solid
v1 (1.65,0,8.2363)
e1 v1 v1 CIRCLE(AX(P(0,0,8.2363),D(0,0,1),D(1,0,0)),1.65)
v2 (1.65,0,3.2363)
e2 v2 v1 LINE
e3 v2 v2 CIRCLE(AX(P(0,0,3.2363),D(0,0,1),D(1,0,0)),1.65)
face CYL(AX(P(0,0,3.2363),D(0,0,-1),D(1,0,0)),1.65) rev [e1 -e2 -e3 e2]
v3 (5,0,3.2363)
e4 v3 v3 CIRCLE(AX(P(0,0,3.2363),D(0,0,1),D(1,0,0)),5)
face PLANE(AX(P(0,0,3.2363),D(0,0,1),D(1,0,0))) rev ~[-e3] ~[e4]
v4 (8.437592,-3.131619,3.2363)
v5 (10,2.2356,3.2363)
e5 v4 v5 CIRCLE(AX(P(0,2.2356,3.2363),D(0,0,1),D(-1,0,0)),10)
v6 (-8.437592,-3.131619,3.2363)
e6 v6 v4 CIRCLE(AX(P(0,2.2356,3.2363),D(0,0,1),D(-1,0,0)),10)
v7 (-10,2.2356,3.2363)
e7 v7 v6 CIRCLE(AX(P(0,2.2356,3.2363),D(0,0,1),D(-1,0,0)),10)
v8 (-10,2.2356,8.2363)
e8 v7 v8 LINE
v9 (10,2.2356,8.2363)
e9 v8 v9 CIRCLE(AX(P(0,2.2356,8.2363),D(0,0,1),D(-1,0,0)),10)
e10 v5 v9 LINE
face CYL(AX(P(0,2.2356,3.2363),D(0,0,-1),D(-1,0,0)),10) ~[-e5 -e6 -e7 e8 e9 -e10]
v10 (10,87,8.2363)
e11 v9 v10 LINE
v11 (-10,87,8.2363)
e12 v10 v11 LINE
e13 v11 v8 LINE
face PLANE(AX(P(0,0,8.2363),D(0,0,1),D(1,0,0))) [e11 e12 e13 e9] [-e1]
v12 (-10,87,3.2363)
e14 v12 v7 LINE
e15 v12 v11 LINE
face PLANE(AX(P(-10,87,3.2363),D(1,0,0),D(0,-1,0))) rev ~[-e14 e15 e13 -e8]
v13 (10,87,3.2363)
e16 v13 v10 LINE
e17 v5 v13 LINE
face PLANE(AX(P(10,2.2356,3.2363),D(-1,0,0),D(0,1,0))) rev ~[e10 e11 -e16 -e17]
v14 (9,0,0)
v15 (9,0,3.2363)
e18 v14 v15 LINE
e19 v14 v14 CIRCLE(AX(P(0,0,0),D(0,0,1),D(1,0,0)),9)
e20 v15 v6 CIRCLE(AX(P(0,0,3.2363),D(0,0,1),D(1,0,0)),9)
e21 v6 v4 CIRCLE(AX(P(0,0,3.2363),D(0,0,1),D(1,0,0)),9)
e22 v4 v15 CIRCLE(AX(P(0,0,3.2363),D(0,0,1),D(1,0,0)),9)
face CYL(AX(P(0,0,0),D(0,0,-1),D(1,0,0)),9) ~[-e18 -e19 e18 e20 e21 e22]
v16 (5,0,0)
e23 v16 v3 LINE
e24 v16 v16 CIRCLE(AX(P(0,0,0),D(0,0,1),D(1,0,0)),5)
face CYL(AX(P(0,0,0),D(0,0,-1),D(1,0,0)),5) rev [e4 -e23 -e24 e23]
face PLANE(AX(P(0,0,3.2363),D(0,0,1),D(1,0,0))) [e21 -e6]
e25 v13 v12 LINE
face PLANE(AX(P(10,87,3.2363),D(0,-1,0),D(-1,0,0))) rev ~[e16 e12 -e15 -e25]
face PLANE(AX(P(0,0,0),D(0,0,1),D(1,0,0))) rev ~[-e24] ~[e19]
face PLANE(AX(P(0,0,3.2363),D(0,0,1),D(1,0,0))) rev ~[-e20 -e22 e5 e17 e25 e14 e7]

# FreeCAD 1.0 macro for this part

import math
import FreeCAD as App
import Part
import Sketcher
from FreeCAD import Vector

doc = App.newDocument("Part")
body = doc.addObject("PartDesign::Body", "Body")

sketch1 = body.newObject("Sketcher::SketchObject", "Sketch")
sketch1.AttachmentSupport = (doc.getObject("XY_Plane"), [""])
sketch1.MapMode = "FlatFace"
sketch1.addGeometry([
    Part.Circle(Vector(0, 0, 0), Vector(0, 0, 1), 9),
    Part.Circle(Vector(0, 0, 0), Vector(0, 0, 1), 5),
], False)
sketch1.addConstraint([
    Sketcher.Constraint("Coincident", 0, 3, -1, 1),
    Sketcher.Constraint("Coincident", 1, 3, -1, 1),
    Sketcher.Constraint("Diameter", 0, 18.0),
    Sketcher.Constraint("Diameter", 1, 10.0),
])
pad1 = body.newObject("PartDesign::Pad", "Pad")
pad1.Profile = sketch1
pad1.Length = 3.2363

sketch2 = body.newObject("Sketcher::SketchObject", "Sketch001")
sketch2.AttachmentSupport = (doc.getObject("XY_Plane"), [""])
sketch2.MapMode = "FlatFace"
sketch2.AttachmentOffset = App.Placement(Vector(0, 0, 3.2363), App.Rotation())
sketch2.addGeometry([
    Part.ArcOfCircle(Part.Circle(Vector(0, 2.2, 0), Vector(0, 0, 1), 10), math.radians(180), math.radians(360)),
    Part.LineSegment(Vector(10, 2.2, 0), Vector(10, 87, 0)),
    Part.LineSegment(Vector(10, 87, 0), Vector(-10, 87, 0)),
    Part.LineSegment(Vector(-10, 87, 0), Vector(-10, 2.2, 0)),
    Part.Circle(Vector(0, 0, 0), Vector(0, 0, 1), 1.6),
], False)
sketch2.addConstraint([
    Sketcher.Constraint("Tangent", 0, 2, 1, 1),
    Sketcher.Constraint("Coincident", 1, 2, 2, 1),
    Sketcher.Constraint("Coincident", 2, 2, 3, 1),
    Sketcher.Constraint("Tangent", 3, 2, 0, 1),
    Sketcher.Constraint("Vertical", 1),
    Sketcher.Constraint("Horizontal", 2),
    Sketcher.Constraint("Vertical", 3),
    Sketcher.Constraint("Coincident", 4, 3, -1, 1),
    Sketcher.Constraint("PointOnObject", 0, 3, -2),
    Sketcher.Constraint("Radius", 0, 10.0),
    Sketcher.Constraint("Diameter", 4, 3.3),
    Sketcher.Constraint("DistanceY", -1, 1, 1, 2, 87.0),
    Sketcher.Constraint("DistanceY", 1, 1, 1, 2, 84.7644),
])
pad2 = body.newObject("PartDesign::Pad", "Pad001")
pad2.Profile = sketch2
pad2.Length = 5

doc.recompute()
